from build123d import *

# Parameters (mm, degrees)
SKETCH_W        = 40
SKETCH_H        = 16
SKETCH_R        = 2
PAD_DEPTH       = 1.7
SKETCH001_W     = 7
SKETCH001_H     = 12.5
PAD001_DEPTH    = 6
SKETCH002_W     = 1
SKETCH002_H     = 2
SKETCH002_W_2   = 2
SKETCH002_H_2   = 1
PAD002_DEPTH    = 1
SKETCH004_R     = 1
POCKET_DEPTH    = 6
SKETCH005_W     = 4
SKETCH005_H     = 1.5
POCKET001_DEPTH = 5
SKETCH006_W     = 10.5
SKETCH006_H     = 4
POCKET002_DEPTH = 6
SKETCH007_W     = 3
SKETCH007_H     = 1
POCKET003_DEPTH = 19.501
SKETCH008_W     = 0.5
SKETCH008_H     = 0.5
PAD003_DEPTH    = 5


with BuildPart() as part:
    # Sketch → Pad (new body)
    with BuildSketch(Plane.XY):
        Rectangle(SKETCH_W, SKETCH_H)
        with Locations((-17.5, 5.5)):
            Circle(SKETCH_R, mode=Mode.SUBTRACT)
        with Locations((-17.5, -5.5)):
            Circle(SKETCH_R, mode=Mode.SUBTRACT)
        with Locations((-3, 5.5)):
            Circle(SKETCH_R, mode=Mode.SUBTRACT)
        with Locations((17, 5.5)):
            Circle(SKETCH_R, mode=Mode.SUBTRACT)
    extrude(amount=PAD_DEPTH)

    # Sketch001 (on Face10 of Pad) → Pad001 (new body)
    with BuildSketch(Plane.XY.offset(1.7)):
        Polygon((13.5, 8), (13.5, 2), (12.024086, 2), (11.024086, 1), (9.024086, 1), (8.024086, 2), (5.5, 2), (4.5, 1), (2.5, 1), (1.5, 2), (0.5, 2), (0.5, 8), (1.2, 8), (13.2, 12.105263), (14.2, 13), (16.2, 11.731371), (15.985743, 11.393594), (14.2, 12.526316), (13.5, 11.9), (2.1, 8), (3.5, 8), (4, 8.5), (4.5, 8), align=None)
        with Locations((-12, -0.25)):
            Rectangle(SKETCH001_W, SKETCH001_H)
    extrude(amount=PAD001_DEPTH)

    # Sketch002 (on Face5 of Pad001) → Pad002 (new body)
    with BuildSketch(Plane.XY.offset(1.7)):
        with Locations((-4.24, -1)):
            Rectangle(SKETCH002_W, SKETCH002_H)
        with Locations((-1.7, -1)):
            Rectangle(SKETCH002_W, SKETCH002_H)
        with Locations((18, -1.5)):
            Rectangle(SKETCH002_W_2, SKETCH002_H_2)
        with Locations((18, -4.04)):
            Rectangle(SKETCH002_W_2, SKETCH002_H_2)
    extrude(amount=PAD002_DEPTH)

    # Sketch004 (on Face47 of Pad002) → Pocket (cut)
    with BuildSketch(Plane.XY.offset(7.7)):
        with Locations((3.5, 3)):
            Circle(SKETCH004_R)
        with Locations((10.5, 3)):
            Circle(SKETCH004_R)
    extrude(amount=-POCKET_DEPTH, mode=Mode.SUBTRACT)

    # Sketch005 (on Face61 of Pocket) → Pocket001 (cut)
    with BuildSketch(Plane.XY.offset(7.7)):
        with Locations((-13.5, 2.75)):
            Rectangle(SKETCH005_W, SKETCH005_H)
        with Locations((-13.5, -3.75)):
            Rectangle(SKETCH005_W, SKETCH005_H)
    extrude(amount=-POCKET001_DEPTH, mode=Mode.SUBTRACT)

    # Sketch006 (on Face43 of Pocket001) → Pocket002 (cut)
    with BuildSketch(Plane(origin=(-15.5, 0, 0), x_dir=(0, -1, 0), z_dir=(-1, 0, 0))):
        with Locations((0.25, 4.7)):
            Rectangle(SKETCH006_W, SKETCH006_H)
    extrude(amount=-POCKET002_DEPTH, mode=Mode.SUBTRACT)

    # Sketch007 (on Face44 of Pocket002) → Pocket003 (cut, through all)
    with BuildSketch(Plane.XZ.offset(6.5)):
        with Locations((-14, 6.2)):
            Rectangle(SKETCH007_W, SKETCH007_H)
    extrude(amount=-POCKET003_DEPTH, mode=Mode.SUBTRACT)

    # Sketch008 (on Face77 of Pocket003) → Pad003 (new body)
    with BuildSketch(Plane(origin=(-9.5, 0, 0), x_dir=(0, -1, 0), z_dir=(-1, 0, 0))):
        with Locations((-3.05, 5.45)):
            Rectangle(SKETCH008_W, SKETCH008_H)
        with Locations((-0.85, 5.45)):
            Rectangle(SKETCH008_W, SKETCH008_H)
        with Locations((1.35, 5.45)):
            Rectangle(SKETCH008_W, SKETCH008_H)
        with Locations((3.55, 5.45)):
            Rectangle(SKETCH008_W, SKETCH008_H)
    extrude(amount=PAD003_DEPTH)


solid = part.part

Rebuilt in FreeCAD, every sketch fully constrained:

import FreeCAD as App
import Part
import Sketcher
from FreeCAD import Vector


def add_polygon(sketch, points):
    """Adds a closed chain of lines whose ends are joined by coincident constraints."""
    first, n = sketch.GeometryCount, len(points)
    for a, b in zip(points, points[1:] + points[:1]):
        sketch.addGeometry(Part.LineSegment(App.Vector(*a, 0), App.Vector(*b, 0)), False)
    for i in range(n):
        sketch.addConstraint(Sketcher.Constraint("Coincident", first + i, 2, first + (i + 1) % n, 1))

doc = App.newDocument("Part")
body = doc.addObject("PartDesign::Body", "Body")

sketch1 = body.newObject("Sketcher::SketchObject", "Sketch")
sketch1.AttachmentSupport = (doc.getObject("XY_Plane"), [""])
sketch1.MapMode = "FlatFace"
add_polygon(sketch1, [(-20, 8), (-20, -8), (20, -8), (20, 8)])
sketch1.addGeometry(Part.Circle(Vector(-17.5, -5.5, 0), Vector(0, 0, 1), 2), False)
sketch1.addGeometry(Part.Circle(Vector(-17.5, 5.5, 0), Vector(0, 0, 1), 2), False)
sketch1.addGeometry(Part.Circle(Vector(-3, 5.5, 0), Vector(0, 0, 1), 2), False)
sketch1.addGeometry(Part.Circle(Vector(17, 5.5, 0), Vector(0, 0, 1), 2), False)
sketch1.addConstraint([
    Sketcher.Constraint("Vertical", 0),
    Sketcher.Constraint("Horizontal", 1),
    Sketcher.Constraint("Vertical", 2),
    Sketcher.Constraint("Horizontal", 3),
    Sketcher.Constraint("Equal", 4, 5),
    Sketcher.Constraint("Equal", 5, 6),
    Sketcher.Constraint("Equal", 6, 7),
    Sketcher.Constraint("Symmetric", 0, 2, 2, 2, -1, 1),
    Sketcher.Constraint("Symmetric", 4, 3, 5, 3, -1),
    Sketcher.Constraint("Horizontal", 5, 3, 6, 3),
    Sketcher.Constraint("Horizontal", 6, 3, 7, 3),
    Sketcher.Constraint("Diameter", 4, 4.0),
    Sketcher.Constraint("DistanceX", 1, 1, 1, 2, 40.0),
    Sketcher.Constraint("DistanceY", 0, 2, 0, 1, 16.0),
    Sketcher.Constraint("DistanceX", 6, 3, -1, 1, 3.0),
    Sketcher.Constraint("DistanceX", -1, 1, 7, 3, 17.0),
    Sketcher.Constraint("DistanceY", 4, 3, 5, 3, 11.0),
    Sketcher.Constraint("DistanceX", 4, 3, -1, 1, 17.5),
])
pad1 = body.newObject("PartDesign::Pad", "Pad")
pad1.Profile = sketch1
pad1.Length = 1.7

sketch2 = body.newObject("Sketcher::SketchObject", "Sketch001")
sketch2.AttachmentSupport = (doc.getObject("XY_Plane"), [""])
sketch2.MapMode = "FlatFace"
sketch2.AttachmentOffset = App.Placement(Vector(0, 0, 1.7), App.Rotation())
add_polygon(sketch2, [(13.5, 2), (13.5, 8), (4.5, 8), (4, 8.5), (3.5, 8), (2.1, 8), (13.5, 11.9), (14.2, 12.526316), (15.985743, 11.393594), (16.2, 11.731371), (14.2, 13), (13.2, 12.105263), (1.2, 8), (0.5, 8), (0.5, 2), (1.5, 2), (2.5, 1), (4.5, 1), (5.5, 2), (8.024086, 2), (9.024086, 1), (11.024086, 1), (12.024086, 2)])
add_polygon(sketch2, [(-15.5, 6), (-15.5, -6.5), (-8.5, -6.5), (-8.5, 6)])
sketch2.addConstraint([
    Sketcher.Constraint("Vertical", 0),
    Sketcher.Constraint("Horizontal", 1),
    Sketcher.Constraint("Horizontal", 4),
    Sketcher.Constraint("Horizontal", 12),
    Sketcher.Constraint("Vertical", 13),
    Sketcher.Constraint("Horizontal", 14),
    Sketcher.Constraint("Horizontal", 16),
    Sketcher.Constraint("Horizontal", 18),
    Sketcher.Constraint("Horizontal", 20),
    Sketcher.Constraint("Horizontal", 22),
    Sketcher.Constraint("Vertical", 23),
    Sketcher.Constraint("Horizontal", 24),
    Sketcher.Constraint("Vertical", 25),
    Sketcher.Constraint("Horizontal", 26),
    Sketcher.Constraint("Perpendicular", 2, 3),
    Sketcher.Constraint("Perpendicular", 7, 8),
    Sketcher.Constraint("Perpendicular", 8, 9),
    Sketcher.Constraint("Parallel", 6, 10),
    Sketcher.Constraint("Parallel", 5, 11),
    Sketcher.Constraint("Perpendicular", 3, 15),
    Sketcher.Constraint("Perpendicular", 15, 17),
    Sketcher.Constraint("Perpendicular", 17, 19),
    Sketcher.Constraint("Perpendicular", 19, 21),
    Sketcher.Constraint("Horizontal", 1, 2, 3, 2),
    Sketcher.Constraint("Horizontal", 4, 2, 11, 2),
    Sketcher.Constraint("Horizontal", 14, 2, 17, 2),
    Sketcher.Constraint("Horizontal", 16, 2, 19, 2),
    Sketcher.Constraint("Horizontal", 18, 2, 21, 2),
    Sketcher.Constraint("Vertical", 0, 2, 5, 2),
    Sketcher.Constraint("Vertical", 6, 2, 9, 2),
    Sketcher.Constraint("Vertical", 1, 2, 16, 2),
    Sketcher.Constraint("Equal", 16, 20),
    Sketcher.Constraint("Equal", 2, 3),
    Sketcher.Constraint("DistanceX", 1, 2, 1, 1, 9.0),
    Sketcher.Constraint("DistanceX", 14, 1, 14, 2, 1.0),
    Sketcher.Constraint("DistanceX", 16, 1, 16, 2, 2.0),
    Sketcher.Constraint("DistanceX", 24, 1, 24, 2, 7.0),
    Sketcher.Constraint("DistanceY", 0, 1, 0, 2, 6.0),
    Sketcher.Constraint("DistanceX", 4, 2, 4, 1, 1.4),
    Sketcher.Constraint("DistanceX", 12, 2, 12, 1, 0.7),
    Sketcher.Constraint("DistanceY", 23, 2, 23, 1, 12.5),
    Sketcher.Constraint("DistanceY", -1, 1, 0, 2, 8.0),
    Sketcher.Constraint("DistanceX", -1, 1, 2, 2, 4.0),
    Sketcher.Constraint("DistanceY", -1, 1, 9, 2, 13.0),
    Sketcher.Constraint("DistanceY", -1, 1, 15, 2, 1.0),
    Sketcher.Constraint("DistanceY", -1, 1, 25, 2, 6.0),
    Sketcher.Constraint("DistanceX", 3, 2, 1, 2, 1.0),
    Sketcher.Constraint("DistanceX", 6, 2, 8, 2, 2.0),
    Sketcher.Constraint("DistanceX", 10, 2, 6, 2, 1.0),
    Sketcher.Constraint("DistanceX", 23, 2, 13, 2, 16.0),
    Sketcher.Constraint("Distance", 8, 0.399999),
    Sketcher.Constraint("DistanceY", -1, 1, 5, 2, 11.9),
    Sketcher.Constraint("DistanceX", -1, 1, 6, 2, 14.2),
    Sketcher.Constraint("DistanceX", 18, 1, 18, 2, 2.524086),
])
pad2 = body.newObject("PartDesign::Pad", "Pad001")
pad2.Profile = sketch2
pad2.Length = 6

sketch3 = body.newObject("Sketcher::SketchObject", "Sketch002")
sketch3.AttachmentSupport = (doc.getObject("XY_Plane"), [""])
sketch3.MapMode = "FlatFace"
sketch3.AttachmentOffset = App.Placement(Vector(0, 0, 1.7), App.Rotation())
add_polygon(sketch3, [(-4.74, 0), (-4.74, -2), (-3.74, -2), (-3.74, 0)])
add_polygon(sketch3, [(-2.2, 0), (-2.2, -2), (-1.2, -2), (-1.2, 0)])
add_polygon(sketch3, [(17, -1), (17, -2), (19, -2), (19, -1)])
add_polygon(sketch3, [(17, -3.54), (17, -4.54), (19, -4.54), (19, -3.54)])
sketch3.addConstraint([
    Sketcher.Constraint("Vertical", 0),
    Sketcher.Constraint("Horizontal", 1),
    Sketcher.Constraint("Vertical", 2),
    Sketcher.Constraint("Horizontal", 3),
    Sketcher.Constraint("Vertical", 4),
    Sketcher.Constraint("Horizontal", 5),
    Sketcher.Constraint("Vertical", 6),
    Sketcher.Constraint("Horizontal", 7),
    Sketcher.Constraint("Vertical", 8),
    Sketcher.Constraint("Horizontal", 9),
    Sketcher.Constraint("Vertical", 10),
    Sketcher.Constraint("Horizontal", 11),
    Sketcher.Constraint("Vertical", 12),
    Sketcher.Constraint("Horizontal", 13),
    Sketcher.Constraint("Vertical", 14),
    Sketcher.Constraint("Horizontal", 15),
    Sketcher.Constraint("PointOnObject", 2, 2, -1),
    Sketcher.Constraint("PointOnObject", 6, 2, -1),
    Sketcher.Constraint("Horizontal", 1, 2, 4, 2),
    Sketcher.Constraint("Horizontal", 5, 2, 8, 2),
    Sketcher.Constraint("Vertical", 11, 2, 12, 2),
    Sketcher.Constraint("Vertical", 10, 2, 13, 2),
    Sketcher.Constraint("Equal", 3, 5),
    Sketcher.Constraint("Equal", 15, 0),
    Sketcher.Constraint("Equal", 7, 8),
    Sketcher.Constraint("Equal", 10, 12),
    Sketcher.Constraint("DistanceX", 1, 1, 1, 2, 1.0),
    Sketcher.Constraint("DistanceX", 9, 1, 9, 2, 2.0),
    Sketcher.Constraint("DistanceX", -1, 1, 8, 2, 17.0),
    Sketcher.Constraint("DistanceX", 4, 2, -1, 1, 2.2),
    Sketcher.Constraint("DistanceX", 0, 2, -1, 1, 4.74),
    Sketcher.Constraint("DistanceY", 12, 2, -1, 1, 4.54),
])
pad3 = body.newObject("PartDesign::Pad", "Pad002")
pad3.Profile = sketch3
pad3.Length = 1

sketch4 = body.newObject("Sketcher::SketchObject", "Sketch003")
sketch4.AttachmentSupport = (doc.getObject("XY_Plane"), [""])
sketch4.MapMode = "FlatFace"
sketch4.AttachmentOffset = App.Placement(Vector(0, 0, 7.7), App.Rotation())
sketch4.addGeometry([
    Part.Circle(Vector(3.5, 3, 0), Vector(0, 0, 1), 1),
    Part.Circle(Vector(10.5, 3, 0), Vector(0, 0, 1), 1),
], False)
sketch4.addConstraint([
    Sketcher.Constraint("Equal", 0, 1),
    Sketcher.Constraint("Horizontal", 0, 3, 1, 3),
    Sketcher.Constraint("Diameter", 0, 2.0),
    Sketcher.Constraint("DistanceY", -1, 1, 0, 3, 3.0),
    Sketcher.Constraint("DistanceX", 0, 3, 1, 3, 7.0),
    Sketcher.Constraint("DistanceX", -1, 1, 0, 3, 3.5),
])
pocket1 = body.newObject("PartDesign::Pocket", "Pocket")
pocket1.Profile = sketch4
pocket1.Length = 6

sketch5 = body.newObject("Sketcher::SketchObject", "Sketch004")
sketch5.AttachmentSupport = (doc.getObject("XY_Plane"), [""])
sketch5.MapMode = "FlatFace"
sketch5.AttachmentOffset = App.Placement(Vector(0, 0, 7.7), App.Rotation())
add_polygon(sketch5, [(-15.5, 3.5), (-15.5, 2), (-11.5, 2), (-11.5, 3.5)])
add_polygon(sketch5, [(-15.5, -3), (-15.5, -4.5), (-11.5, -4.5), (-11.5, -3)])
sketch5.addConstraint([
    Sketcher.Constraint("Vertical", 0),
    Sketcher.Constraint("Horizontal", 1),
    Sketcher.Constraint("Vertical", 2),
    Sketcher.Constraint("Horizontal", 3),
    Sketcher.Constraint("Vertical", 4),
    Sketcher.Constraint("Horizontal", 5),
    Sketcher.Constraint("Vertical", 6),
    Sketcher.Constraint("Horizontal", 7),
    Sketcher.Constraint("Vertical", 3, 2, 4, 2),
    Sketcher.Constraint("Vertical", 2, 2, 5, 2),
    Sketcher.Constraint("Equal", 2, 4),
    Sketcher.Constraint("DistanceX", 1, 1, 1, 2, 4.0),
    Sketcher.Constraint("DistanceY", 0, 2, 0, 1, 1.5),
    Sketcher.Constraint("DistanceY", -1, 1, 0, 2, 2.0),
    Sketcher.Constraint("DistanceY", 6, 2, -1, 1, 3.0),
    Sketcher.Constraint("DistanceX", 0, 2, -1, 1, 15.5),
])
pocket2 = body.newObject("PartDesign::Pocket", "Pocket001")
pocket2.Profile = sketch5
pocket2.Length = 5

sketch6 = body.newObject("Sketcher::SketchObject", "Sketch005")
sketch6.AttachmentSupport = (doc.getObject("YZ_Plane"), [""])
sketch6.MapMode = "FlatFace"
sketch6.AttachmentOffset = App.Placement(Vector(0, 0, -15.5), App.Rotation())
add_polygon(sketch6, [(5, 6.7), (5, 2.7), (-5.5, 2.7), (-5.5, 6.7)])
sketch6.addConstraint([
    Sketcher.Constraint("Vertical", 0),
    Sketcher.Constraint("Horizontal", 1),
    Sketcher.Constraint("Vertical", 2),
    Sketcher.Constraint("Horizontal", 3),
    Sketcher.Constraint("DistanceY", 0, 2, 0, 1, 4.0),
    Sketcher.Constraint("DistanceX", 1, 2, 1, 1, 10.5),
    Sketcher.Constraint("DistanceX", -1, 1, 0, 2, 5.0),
    Sketcher.Constraint("DistanceY", -1, 1, 0, 2, 2.7),
])
pocket3 = body.newObject("PartDesign::Pocket", "Pocket002")
pocket3.Profile = sketch6
pocket3.Length = 6
pocket3.Reversed = True

sketch7 = body.newObject("Sketcher::SketchObject", "Sketch006")
sketch7.AttachmentSupport = (doc.getObject("XZ_Plane"), [""])
sketch7.MapMode = "FlatFace"
sketch7.AttachmentOffset = App.Placement(Vector(0, 0, 6.5), App.Rotation())
add_polygon(sketch7, [(-15.5, 6.7), (-15.5, 5.7), (-12.5, 5.7), (-12.5, 6.7)])
sketch7.addConstraint([
    Sketcher.Constraint("Vertical", 0),
    Sketcher.Constraint("Horizontal", 1),
    Sketcher.Constraint("Vertical", 2),
    Sketcher.Constraint("Horizontal", 3),
    Sketcher.Constraint("DistanceX", 1, 1, 1, 2, 3.0),
    Sketcher.Constraint("DistanceY", 0, 2, 0, 1, 1.0),
    Sketcher.Constraint("DistanceX", 0, 2, -1, 1, 15.5),
    Sketcher.Constraint("DistanceY", -1, 1, 0, 2, 5.7),
])
pocket4 = body.newObject("PartDesign::Pocket", "Pocket003")
pocket4.Profile = sketch7
pocket4.Type = "ThroughAll"

sketch8 = body.newObject("Sketcher::SketchObject", "Sketch007")
sketch8.AttachmentSupport = (doc.getObject("YZ_Plane"), [""])
sketch8.MapMode = "FlatFace"
sketch8.AttachmentOffset = App.Placement(Vector(0, 0, -9.5), App.Rotation())
add_polygon(sketch8, [(3.3, 5.7), (3.3, 5.2), (2.8, 5.2), (2.8, 5.7)])
add_polygon(sketch8, [(1.1, 5.7), (1.1, 5.2), (0.6, 5.2), (0.6, 5.7)])
add_polygon(sketch8, [(-1.1, 5.7), (-1.1, 5.2), (-1.6, 5.2), (-1.6, 5.7)])
add_polygon(sketch8, [(-3.3, 5.7), (-3.3, 5.2), (-3.8, 5.2), (-3.8, 5.7)])
sketch8.addConstraint([
    Sketcher.Constraint("Vertical", 0),
    Sketcher.Constraint("Horizontal", 1),
    Sketcher.Constraint("Vertical", 2),
    Sketcher.Constraint("Horizontal", 3),
    Sketcher.Constraint("Vertical", 4),
    Sketcher.Constraint("Horizontal", 5),
    Sketcher.Constraint("Vertical", 6),
    Sketcher.Constraint("Horizontal", 7),
    Sketcher.Constraint("Vertical", 8),
    Sketcher.Constraint("Horizontal", 9),
    Sketcher.Constraint("Vertical", 10),
    Sketcher.Constraint("Horizontal", 11),
    Sketcher.Constraint("Vertical", 12),
    Sketcher.Constraint("Horizontal", 13),
    Sketcher.Constraint("Vertical", 14),
    Sketcher.Constraint("Horizontal", 15),
    Sketcher.Constraint("Symmetric", 4, 2, 8, 2, -2),
    Sketcher.Constraint("Symmetric", 0, 2, 12, 2, -2),
    Sketcher.Constraint("Horizontal", 1, 2, 4, 2),
    Sketcher.Constraint("Horizontal", 3, 2, 6, 2),
    Sketcher.Constraint("Horizontal", 7, 2, 10, 2),
    Sketcher.Constraint("Horizontal", 11, 2, 14, 2),
    Sketcher.Constraint("Equal", 3, 5),
    Sketcher.Constraint("Equal", 7, 9),
    Sketcher.Constraint("Equal", 11, 13),
    Sketcher.Constraint("Equal", 15, 0),
    Sketcher.Constraint("DistanceX", 1, 2, 1, 1, 0.5),
    Sketcher.Constraint("DistanceX", -1, 1, 0, 2, 3.3),
    Sketcher.Constraint("DistanceY", -1, 1, 0, 2, 5.2),
    Sketcher.Constraint("DistanceX", -1, 1, 4, 2, 1.1),
])
pad4 = body.newObject("PartDesign::Pad", "Pad003")
pad4.Profile = sketch8
pad4.Length = 5
pad4.Reversed = True

doc.recompute()
